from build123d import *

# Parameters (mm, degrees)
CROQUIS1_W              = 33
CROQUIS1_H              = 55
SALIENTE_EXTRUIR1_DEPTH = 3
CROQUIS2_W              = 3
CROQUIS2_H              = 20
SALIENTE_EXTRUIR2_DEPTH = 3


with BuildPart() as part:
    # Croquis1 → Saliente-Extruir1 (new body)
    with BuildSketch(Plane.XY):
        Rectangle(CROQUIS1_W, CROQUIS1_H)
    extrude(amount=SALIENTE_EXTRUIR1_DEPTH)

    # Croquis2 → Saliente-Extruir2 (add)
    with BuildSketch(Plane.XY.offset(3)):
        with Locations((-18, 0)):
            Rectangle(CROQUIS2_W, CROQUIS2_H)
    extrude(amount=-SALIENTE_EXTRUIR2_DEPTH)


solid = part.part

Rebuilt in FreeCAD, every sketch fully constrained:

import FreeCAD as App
import Part
import Sketcher

doc = App.newDocument("Part")
params = doc.addObject("Spreadsheet::Sheet", "Params")
for row, (alias, value) in enumerate([
    ("sketch1_width", "33 mm"),
    ("sketch1_height", "55 mm"),
    ("pad1_length", "3 mm"),
    ("sketch2_width", "3 mm"),
    ("sketch2_height", "20 mm"),
    ("pad2_length", "3 mm"),
], start=1):
    params.set(f"A{row}", alias)
    params.set(f"B{row}", "=" + value)
    params.setAlias(f"B{row}", alias)

body = doc.addObject("PartDesign::Body", "Body")

# Sketch on XY plane
sketch1 = body.newObject("Sketcher::SketchObject", "Sketch")
sketch1.AttachmentSupport = (doc.getObject("XY_Plane"), [""])
sketch1.MapMode = "FlatFace"
sketch1.addGeometry(Part.LineSegment(App.Vector(-16.5, 27.5, 0), App.Vector(-16.5, -27.5, 0)), False)
sketch1.addGeometry(Part.LineSegment(App.Vector(-16.5, -27.5, 0), App.Vector(16.5, -27.5, 0)), False)
sketch1.addGeometry(Part.LineSegment(App.Vector(16.5, -27.5, 0), App.Vector(16.5, 27.5, 0)), False)
sketch1.addGeometry(Part.LineSegment(App.Vector(16.5, 27.5, 0), App.Vector(-16.5, 27.5, 0)), False)
sketch1.addConstraint(Sketcher.Constraint("Coincident", 0, 2, 1, 1))
sketch1.addConstraint(Sketcher.Constraint("Coincident", 1, 2, 2, 1))
sketch1.addConstraint(Sketcher.Constraint("Coincident", 2, 2, 3, 1))
sketch1.addConstraint(Sketcher.Constraint("Coincident", 3, 2, 0, 1))
sketch1.addConstraint(Sketcher.Constraint("Vertical", 0))
sketch1.addConstraint(Sketcher.Constraint("Horizontal", 1))
sketch1.addConstraint(Sketcher.Constraint("Vertical", 2))
sketch1.addConstraint(Sketcher.Constraint("Horizontal", 3))
sketch1.addConstraint(Sketcher.Constraint("Symmetric", 0, 2, 2, 2, -1, 1))
sketch1.addConstraint(Sketcher.Constraint("DistanceX", 1, 1, 1, 2, 33.0))
sketch1.addConstraint(Sketcher.Constraint("DistanceY", 0, 2, 0, 1, 55.0))
sketch1.setExpression("Constraints[9]", "Params.sketch1_width")
sketch1.setExpression("Constraints[10]", "Params.sketch1_height")
pad1 = body.newObject("PartDesign::Pad", "Pad")
pad1.Profile = sketch1
pad1.setExpression("Length", "Params.pad1_length")

# Sketch on XY plane
sketch2 = body.newObject("Sketcher::SketchObject", "Sketch001")
sketch2.AttachmentSupport = (doc.getObject("XY_Plane"), [""])
sketch2.MapMode = "FlatFace"
sketch2.AttachmentOffset = App.Placement(App.Vector(0, 0, 3), App.Rotation())
sketch2.addGeometry(Part.LineSegment(App.Vector(-19.5, 10, 0), App.Vector(-19.5, -10, 0)), False)
sketch2.addGeometry(Part.LineSegment(App.Vector(-19.5, -10, 0), App.Vector(-16.5, -10, 0)), False)
sketch2.addGeometry(Part.LineSegment(App.Vector(-16.5, -10, 0), App.Vector(-16.5, 10, 0)), False)
sketch2.addGeometry(Part.LineSegment(App.Vector(-16.5, 10, 0), App.Vector(-19.5, 10, 0)), False)
sketch2.addConstraint(Sketcher.Constraint("Coincident", 0, 2, 1, 1))
sketch2.addConstraint(Sketcher.Constraint("Coincident", 1, 2, 2, 1))
sketch2.addConstraint(Sketcher.Constraint("Coincident", 2, 2, 3, 1))
sketch2.addConstraint(Sketcher.Constraint("Coincident", 3, 2, 0, 1))
sketch2.addConstraint(Sketcher.Constraint("Vertical", 0))
sketch2.addConstraint(Sketcher.Constraint("Horizontal", 1))
sketch2.addConstraint(Sketcher.Constraint("Vertical", 2))
sketch2.addConstraint(Sketcher.Constraint("Horizontal", 3))
sketch2.addConstraint(Sketcher.Constraint("DistanceX", 1, 1, 1, 2, 3.0))
sketch2.addConstraint(Sketcher.Constraint("DistanceY", 0, 2, 0, 1, 20.0))
sketch2.addConstraint(Sketcher.Constraint("DistanceY", 0, 2, -1, 1, 10.0))
sketch2.addConstraint(Sketcher.Constraint("DistanceX", 0, 2, -1, 1, 19.5))
sketch2.setExpression("Constraints[8]", "Params.sketch2_width")
sketch2.setExpression("Constraints[9]", "Params.sketch2_height")
pad2 = body.newObject("PartDesign::Pad", "Pad001")
pad2.Profile = sketch2
pad2.setExpression("Length", "Params.pad2_length")
pad2.Reversed = True

doc.recompute()
